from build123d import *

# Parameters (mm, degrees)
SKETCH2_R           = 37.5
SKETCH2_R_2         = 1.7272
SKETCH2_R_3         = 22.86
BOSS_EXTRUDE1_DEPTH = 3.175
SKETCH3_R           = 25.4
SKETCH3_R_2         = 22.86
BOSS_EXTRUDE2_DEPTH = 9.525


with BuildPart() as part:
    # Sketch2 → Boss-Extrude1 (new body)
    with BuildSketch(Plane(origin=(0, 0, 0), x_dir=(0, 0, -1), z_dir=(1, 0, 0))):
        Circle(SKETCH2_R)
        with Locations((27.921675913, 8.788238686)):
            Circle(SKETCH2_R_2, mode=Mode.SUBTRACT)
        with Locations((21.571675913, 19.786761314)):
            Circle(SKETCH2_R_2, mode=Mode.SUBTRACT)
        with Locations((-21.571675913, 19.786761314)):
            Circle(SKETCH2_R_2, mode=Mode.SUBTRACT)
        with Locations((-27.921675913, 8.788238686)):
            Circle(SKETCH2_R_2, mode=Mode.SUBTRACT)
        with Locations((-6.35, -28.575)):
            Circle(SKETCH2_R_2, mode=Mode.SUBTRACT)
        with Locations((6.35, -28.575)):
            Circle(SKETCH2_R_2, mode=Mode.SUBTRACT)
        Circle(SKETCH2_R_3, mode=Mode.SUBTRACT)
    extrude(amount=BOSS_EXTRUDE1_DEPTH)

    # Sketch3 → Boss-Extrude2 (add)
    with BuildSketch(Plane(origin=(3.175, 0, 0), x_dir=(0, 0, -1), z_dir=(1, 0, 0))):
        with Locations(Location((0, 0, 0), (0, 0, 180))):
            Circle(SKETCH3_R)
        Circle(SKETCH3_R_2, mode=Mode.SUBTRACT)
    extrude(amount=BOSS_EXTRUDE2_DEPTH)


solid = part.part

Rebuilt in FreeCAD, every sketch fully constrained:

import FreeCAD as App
import Part
import Sketcher

V = App.Vector
Q = App.Units.Quantity

doc = App.newDocument("Part")
body = doc.addObject("PartDesign::Body", "Body")

# Sketch on YZ plane
sketch1 = body.newObject("Sketcher::SketchObject", "Sketch")
sketch1.AttachmentSupport = (doc.getObject("YZ_Plane"), [""])
sketch1.MapMode = "FlatFace"
sketch1.addGeometry(Part.Circle(V(0, 0, 0), V(0, 0, 1), 37.5), False)
sketch1.addGeometry(Part.Circle(V(-28.6, 6.3, 0), V(0, 0, 1), 1.7), False)
sketch1.addGeometry(Part.Circle(V(-28.6, -6.3, 0), V(0, 0, 1), 1.7), False)
sketch1.addGeometry(Part.Circle(V(8.8, 27.9, 0), V(0, 0, 1), 1.7), False)
sketch1.addGeometry(Part.Circle(V(19.8, 21.6, 0), V(0, 0, 1), 1.7), False)
sketch1.addGeometry(Part.Circle(V(0, 0, 0), V(0, 0, 1), 22.9), False)
sketch1.addGeometry(Part.Circle(V(8.8, -27.9, 0), V(0, 0, 1), 1.7), False)
sketch1.addGeometry(Part.Circle(V(19.8, -21.6, 0), V(0, 0, 1), 1.7), False)
sketch1.addConstraint(Sketcher.Constraint("Coincident", 0, 3, -1, 1))
sketch1.addConstraint(Sketcher.Constraint("Coincident", 5, 3, -1, 1))
sketch1.addConstraint(Sketcher.Constraint("Equal", 1, 2))
sketch1.addConstraint(Sketcher.Constraint("Equal", 2, 3))
sketch1.addConstraint(Sketcher.Constraint("Equal", 3, 4))
sketch1.addConstraint(Sketcher.Constraint("Equal", 4, 6))
sketch1.addConstraint(Sketcher.Constraint("Equal", 6, 7))
sketch1.addConstraint(Sketcher.Constraint("Symmetric", 1, 3, 2, 3, -1))
sketch1.addConstraint(Sketcher.Constraint("Symmetric", 3, 3, 6, 3, -1))
sketch1.addConstraint(Sketcher.Constraint("Symmetric", 4, 3, 7, 3, -1))
sketch1.addConstraint(Sketcher.Constraint("Diameter", 5, Q("1.8 in")))
sketch1.addConstraint(Sketcher.Constraint("Diameter", 1, Q("0.136 in")))
sketch1.addConstraint(Sketcher.Constraint("DistanceY", 2, 3, 1, 3, Q("0.5 in")))
sketch1.addConstraint(Sketcher.Constraint("Diameter", 0, 75.0))
sketch1.addConstraint(Sketcher.Constraint("DistanceY", 4, 3, 3, 3, Q("0.25 in")))
sketch1.addConstraint(Sketcher.Constraint("DistanceX", 1, 3, -1, 1, Q("1.125 in")))
sketch1.addConstraint(Sketcher.Constraint("DistanceX", -1, 1, 3, 3, 8.788239))
sketch1.addConstraint(Sketcher.Constraint("DistanceX", -1, 1, 4, 3, 19.786761))
sketch1.addConstraint(Sketcher.Constraint("DistanceY", 6, 3, 4, 3, 49.493352))
pad1 = body.newObject("PartDesign::Pad", "Pad")
pad1.Profile = sketch1
pad1.Length = Q("0.125 in")

# Sketch on YZ plane
sketch2 = body.newObject("Sketcher::SketchObject", "Sketch001")
sketch2.AttachmentSupport = (doc.getObject("YZ_Plane"), [""])
sketch2.MapMode = "FlatFace"
sketch2.AttachmentOffset = App.Placement(V(0, 0, 0.125 * 25.4), App.Rotation())
sketch2.addGeometry(Part.Circle(V(0, 0, 0), V(0, 0, 1), 25), False)
sketch2.addGeometry(Part.Circle(V(0, 0, 0), V(0, 0, 1), 23), False)
sketch2.addConstraint(Sketcher.Constraint("Coincident", 0, 3, -1, 1))
sketch2.addConstraint(Sketcher.Constraint("Coincident", 1, 3, -1, 1))
sketch2.addConstraint(Sketcher.Constraint("Diameter", 0, Q("2 in")))
sketch2.addConstraint(Sketcher.Constraint("Diameter", 1, Q("1.8 in")))
pad2 = body.newObject("PartDesign::Pad", "Pad001")
pad2.Profile = sketch2
pad2.Length = Q("0.375 in")

doc.recompute()
